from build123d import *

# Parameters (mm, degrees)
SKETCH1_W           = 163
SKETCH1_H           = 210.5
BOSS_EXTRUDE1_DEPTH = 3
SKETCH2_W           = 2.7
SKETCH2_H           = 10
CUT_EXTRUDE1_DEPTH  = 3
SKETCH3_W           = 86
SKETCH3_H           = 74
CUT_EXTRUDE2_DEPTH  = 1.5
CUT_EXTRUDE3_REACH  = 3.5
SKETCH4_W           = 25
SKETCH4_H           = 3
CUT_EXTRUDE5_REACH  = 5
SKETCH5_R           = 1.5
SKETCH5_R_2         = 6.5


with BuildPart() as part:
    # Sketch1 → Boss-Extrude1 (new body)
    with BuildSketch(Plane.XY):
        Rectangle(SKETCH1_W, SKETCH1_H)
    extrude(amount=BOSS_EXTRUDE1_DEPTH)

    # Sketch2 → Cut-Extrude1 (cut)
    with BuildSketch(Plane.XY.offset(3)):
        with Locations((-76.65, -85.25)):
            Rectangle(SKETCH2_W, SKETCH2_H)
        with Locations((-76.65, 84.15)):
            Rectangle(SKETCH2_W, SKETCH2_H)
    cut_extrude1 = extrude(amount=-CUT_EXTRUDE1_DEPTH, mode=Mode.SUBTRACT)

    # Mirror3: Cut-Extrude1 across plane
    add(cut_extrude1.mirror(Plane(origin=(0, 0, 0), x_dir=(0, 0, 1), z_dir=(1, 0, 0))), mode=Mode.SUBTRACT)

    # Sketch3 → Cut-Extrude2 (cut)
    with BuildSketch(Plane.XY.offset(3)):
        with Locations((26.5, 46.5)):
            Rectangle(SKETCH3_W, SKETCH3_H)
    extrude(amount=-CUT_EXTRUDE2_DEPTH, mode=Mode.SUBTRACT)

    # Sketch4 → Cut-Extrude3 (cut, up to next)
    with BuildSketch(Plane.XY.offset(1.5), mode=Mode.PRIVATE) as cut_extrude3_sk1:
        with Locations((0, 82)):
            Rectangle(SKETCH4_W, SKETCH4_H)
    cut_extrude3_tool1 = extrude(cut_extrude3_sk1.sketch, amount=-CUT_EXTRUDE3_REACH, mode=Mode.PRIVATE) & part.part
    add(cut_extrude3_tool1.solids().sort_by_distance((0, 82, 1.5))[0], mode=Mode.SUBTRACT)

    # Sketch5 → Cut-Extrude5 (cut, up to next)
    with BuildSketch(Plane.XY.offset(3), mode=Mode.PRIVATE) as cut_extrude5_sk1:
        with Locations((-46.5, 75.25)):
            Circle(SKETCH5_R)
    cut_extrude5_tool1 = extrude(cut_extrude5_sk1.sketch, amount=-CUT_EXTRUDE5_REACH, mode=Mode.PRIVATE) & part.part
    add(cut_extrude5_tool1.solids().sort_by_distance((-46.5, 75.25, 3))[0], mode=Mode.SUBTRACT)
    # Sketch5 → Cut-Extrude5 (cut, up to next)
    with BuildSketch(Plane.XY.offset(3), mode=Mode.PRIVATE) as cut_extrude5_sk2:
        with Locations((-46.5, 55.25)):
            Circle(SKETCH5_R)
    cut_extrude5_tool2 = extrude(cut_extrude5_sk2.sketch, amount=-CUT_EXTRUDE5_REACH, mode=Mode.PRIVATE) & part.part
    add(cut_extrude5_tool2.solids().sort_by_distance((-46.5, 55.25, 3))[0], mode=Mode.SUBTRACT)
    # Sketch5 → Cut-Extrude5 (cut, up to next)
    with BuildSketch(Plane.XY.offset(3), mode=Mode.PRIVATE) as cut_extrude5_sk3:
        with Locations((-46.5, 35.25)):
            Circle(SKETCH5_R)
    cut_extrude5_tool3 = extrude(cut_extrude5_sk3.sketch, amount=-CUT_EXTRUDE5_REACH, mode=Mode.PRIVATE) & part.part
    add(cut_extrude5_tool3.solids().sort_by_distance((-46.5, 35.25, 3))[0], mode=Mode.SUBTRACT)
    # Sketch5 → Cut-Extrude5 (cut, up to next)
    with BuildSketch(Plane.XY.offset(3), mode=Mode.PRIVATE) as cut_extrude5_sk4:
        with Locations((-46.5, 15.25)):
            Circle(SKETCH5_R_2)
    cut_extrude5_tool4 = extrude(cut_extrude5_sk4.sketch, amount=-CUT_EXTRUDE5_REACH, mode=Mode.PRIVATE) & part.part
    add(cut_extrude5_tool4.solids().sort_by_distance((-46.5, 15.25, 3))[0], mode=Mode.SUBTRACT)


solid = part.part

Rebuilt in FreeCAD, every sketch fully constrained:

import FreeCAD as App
import Part
import Sketcher

doc = App.newDocument("Part")
params = doc.addObject("Spreadsheet::Sheet", "Params")
for row, (alias, value) in enumerate([
    ("sketch1_width", "163 mm"),
    ("sketch1_height", "210.5 mm"),
    ("pad1_length", "3 mm"),
    ("sketch2_height", "10 mm"),
    ("sketch2_width", "2.7 mm"),
    ("pocket1_length", "3 mm"),
    ("sketch3_width", "86 mm"),
    ("sketch3_height", "74 mm"),
    ("pocket2_length", "1.5 mm"),
    ("sketch4_width", "25 mm"),
    ("sketch4_height", "3 mm"),
    ("sketch5_diameter", "3 mm"),
    ("sketch6_diameter", "3 mm"),
    ("sketch7_diameter", "3 mm"),
    ("sketch8_diameter", "13 mm"),
], start=1):
    params.set(f"A{row}", alias)
    params.set(f"B{row}", "=" + value)
    params.setAlias(f"B{row}", alias)

body = doc.addObject("PartDesign::Body", "Body")

# Sketch on XY plane
sketch1 = doc.addObject("Sketcher::SketchObject", "Sketch")
body.addObject(sketch1)
sketch1.AttachmentSupport = (doc.XY_Plane, [""])
sketch1.MapMode = "FlatFace"
sketch1.addGeometry(Part.LineSegment(App.Vector(-82, 105, 0), App.Vector(-82, -105, 0)), False)
sketch1.addGeometry(Part.LineSegment(App.Vector(-82, -105, 0), App.Vector(82, -105, 0)), False)
sketch1.addGeometry(Part.LineSegment(App.Vector(82, -105, 0), App.Vector(82, 105, 0)), False)
sketch1.addGeometry(Part.LineSegment(App.Vector(82, 105, 0), App.Vector(-82, 105, 0)), False)
sketch1.addConstraint(Sketcher.Constraint("Coincident", 0, 2, 1, 1))
sketch1.addConstraint(Sketcher.Constraint("Coincident", 1, 2, 2, 1))
sketch1.addConstraint(Sketcher.Constraint("Coincident", 2, 2, 3, 1))
sketch1.addConstraint(Sketcher.Constraint("Coincident", 3, 2, 0, 1))
sketch1.addConstraint(Sketcher.Constraint("Vertical", 0))
sketch1.addConstraint(Sketcher.Constraint("Horizontal", 1))
sketch1.addConstraint(Sketcher.Constraint("Vertical", 2))
sketch1.addConstraint(Sketcher.Constraint("Horizontal", 3))
sketch1.addConstraint(Sketcher.Constraint("Symmetric", 0, 2, 2, 2, -1, 1))
sketch1.addConstraint(Sketcher.Constraint("DistanceX", 1, 1, 1, 2, 163.0))
sketch1.addConstraint(Sketcher.Constraint("DistanceY", 0, 2, 0, 1, 210.5))
sketch1.setExpression("Constraints[9]", "Params.sketch1_width")
sketch1.setExpression("Constraints[10]", "Params.sketch1_height")
pad1 = doc.addObject("PartDesign::Pad", "Pad")
body.addObject(pad1)
pad1.Profile = sketch1
pad1.setExpression("Length", "Params.pad1_length")

# Sketch on XY plane
sketch2 = doc.addObject("Sketcher::SketchObject", "Sketch001")
body.addObject(sketch2)
sketch2.AttachmentSupport = (doc.XY_Plane, [""])
sketch2.MapMode = "FlatFace"
sketch2.AttachmentOffset = App.Placement(App.Vector(0, 0, 3), App.Rotation())
sketch2.addGeometry(Part.LineSegment(App.Vector(-78, -80.2, 0), App.Vector(-78, -90.2, 0)), False)
sketch2.addGeometry(Part.LineSegment(App.Vector(-78, -90.2, 0), App.Vector(-75.3, -90.2, 0)), False)
sketch2.addGeometry(Part.LineSegment(App.Vector(-75.3, -90.2, 0), App.Vector(-75.3, -80.2, 0)), False)
sketch2.addGeometry(Part.LineSegment(App.Vector(-75.3, -80.2, 0), App.Vector(-78, -80.2, 0)), False)
sketch2.addGeometry(Part.LineSegment(App.Vector(-78, 89.2, 0), App.Vector(-78, 79.2, 0)), False)
sketch2.addGeometry(Part.LineSegment(App.Vector(-78, 79.2, 0), App.Vector(-75.3, 79.2, 0)), False)
sketch2.addGeometry(Part.LineSegment(App.Vector(-75.3, 79.2, 0), App.Vector(-75.3, 89.2, 0)), False)
sketch2.addGeometry(Part.LineSegment(App.Vector(-75.3, 89.2, 0), App.Vector(-78, 89.2, 0)), False)
sketch2.addConstraint(Sketcher.Constraint("Coincident", 0, 2, 1, 1))
sketch2.addConstraint(Sketcher.Constraint("Coincident", 1, 2, 2, 1))
sketch2.addConstraint(Sketcher.Constraint("Coincident", 2, 2, 3, 1))
sketch2.addConstraint(Sketcher.Constraint("Coincident", 3, 2, 0, 1))
sketch2.addConstraint(Sketcher.Constraint("Coincident", 4, 2, 5, 1))
sketch2.addConstraint(Sketcher.Constraint("Coincident", 5, 2, 6, 1))
sketch2.addConstraint(Sketcher.Constraint("Coincident", 6, 2, 7, 1))
sketch2.addConstraint(Sketcher.Constraint("Coincident", 7, 2, 4, 1))
sketch2.addConstraint(Sketcher.Constraint("Vertical", 0))
sketch2.addConstraint(Sketcher.Constraint("Horizontal", 1))
sketch2.addConstraint(Sketcher.Constraint("Vertical", 2))
sketch2.addConstraint(Sketcher.Constraint("Horizontal", 3))
sketch2.addConstraint(Sketcher.Constraint("Vertical", 4))
sketch2.addConstraint(Sketcher.Constraint("Horizontal", 5))
sketch2.addConstraint(Sketcher.Constraint("Vertical", 6))
sketch2.addConstraint(Sketcher.Constraint("Horizontal", 7))
sketch2.addConstraint(Sketcher.Constraint("Vertical", 3, 2, 4, 2))
sketch2.addConstraint(Sketcher.Constraint("Vertical", 2, 2, 5, 2))
sketch2.addConstraint(Sketcher.Constraint("Equal", 2, 4))
sketch2.addConstraint(Sketcher.Constraint("DistanceY", 0, 2, 0, 1, 10.0))
sketch2.addConstraint(Sketcher.Constraint("DistanceX", 1, 1, 1, 2, 2.7))
sketch2.addConstraint(Sketcher.Constraint("DistanceX", 0, 2, -1, 1, 78.0))
sketch2.addConstraint(Sketcher.Constraint("DistanceY", 3, 2, 4, 2, 159.4))
sketch2.addConstraint(Sketcher.Constraint("DistanceY", 0, 2, -1, 1, 90.25))
sketch2.setExpression("Constraints[19]", "Params.sketch2_height")
sketch2.setExpression("Constraints[20]", "Params.sketch2_width")
pocket1 = doc.addObject("PartDesign::Pocket", "Pocket")
body.addObject(pocket1)
pocket1.Profile = sketch2
pocket1.setExpression("Length", "Params.pocket1_length")
doc.recompute()

mirrored = doc.addObject("PartDesign::Mirrored", "Mirrored")
body.addObject(mirrored)
mirrored.Originals = [pocket1]
mirrored.MirrorPlane = (doc.YZ_Plane, [""])
body.Tip = mirrored

# Sketch on XY plane
sketch3 = doc.addObject("Sketcher::SketchObject", "Sketch002")
body.addObject(sketch3)
sketch3.AttachmentSupport = (doc.XY_Plane, [""])
sketch3.MapMode = "FlatFace"
sketch3.AttachmentOffset = App.Placement(App.Vector(0, 0, 3), App.Rotation())
sketch3.addGeometry(Part.LineSegment(App.Vector(-16, 84, 0), App.Vector(-16, 10, 0)), False)
sketch3.addGeometry(Part.LineSegment(App.Vector(-16, 10, 0), App.Vector(70, 10, 0)), False)
sketch3.addGeometry(Part.LineSegment(App.Vector(70, 10, 0), App.Vector(70, 84, 0)), False)
sketch3.addGeometry(Part.LineSegment(App.Vector(70, 84, 0), App.Vector(-16, 84, 0)), False)
sketch3.addConstraint(Sketcher.Constraint("Coincident", 0, 2, 1, 1))
sketch3.addConstraint(Sketcher.Constraint("Coincident", 1, 2, 2, 1))
sketch3.addConstraint(Sketcher.Constraint("Coincident", 2, 2, 3, 1))
sketch3.addConstraint(Sketcher.Constraint("Coincident", 3, 2, 0, 1))
sketch3.addConstraint(Sketcher.Constraint("Vertical", 0))
sketch3.addConstraint(Sketcher.Constraint("Horizontal", 1))
sketch3.addConstraint(Sketcher.Constraint("Vertical", 2))
sketch3.addConstraint(Sketcher.Constraint("Horizontal", 3))
sketch3.addConstraint(Sketcher.Constraint("DistanceX", 1, 1, 1, 2, 86.0))
sketch3.addConstraint(Sketcher.Constraint("DistanceY", 0, 2, 0, 1, 74.0))
sketch3.addConstraint(Sketcher.Constraint("DistanceX", 0, 2, -1, 1, 16.5))
sketch3.addConstraint(Sketcher.Constraint("DistanceY", -1, 1, 0, 2, 9.5))
sketch3.setExpression("Constraints[8]", "Params.sketch3_width")
sketch3.setExpression("Constraints[9]", "Params.sketch3_height")
pocket2 = doc.addObject("PartDesign::Pocket", "Pocket001")
body.addObject(pocket2)
pocket2.Profile = sketch3
pocket2.setExpression("Length", "Params.pocket2_length")

# Sketch on XY plane
sketch4 = doc.addObject("Sketcher::SketchObject", "Sketch003")
body.addObject(sketch4)
sketch4.AttachmentSupport = (doc.XY_Plane, [""])
sketch4.MapMode = "FlatFace"
sketch4.AttachmentOffset = App.Placement(App.Vector(0, 0, 1.5), App.Rotation())
sketch4.addGeometry(Part.LineSegment(App.Vector(-12.5, 83.5, 0), App.Vector(-12.5, 80.5, 0)), False)
sketch4.addGeometry(Part.LineSegment(App.Vector(-12.5, 80.5, 0), App.Vector(12.5, 80.5, 0)), False)
sketch4.addGeometry(Part.LineSegment(App.Vector(12.5, 80.5, 0), App.Vector(12.5, 83.5, 0)), False)
sketch4.addGeometry(Part.LineSegment(App.Vector(12.5, 83.5, 0), App.Vector(-12.5, 83.5, 0)), False)
sketch4.addConstraint(Sketcher.Constraint("Coincident", 0, 2, 1, 1))
sketch4.addConstraint(Sketcher.Constraint("Coincident", 1, 2, 2, 1))
sketch4.addConstraint(Sketcher.Constraint("Coincident", 2, 2, 3, 1))
sketch4.addConstraint(Sketcher.Constraint("Coincident", 3, 2, 0, 1))
sketch4.addConstraint(Sketcher.Constraint("Vertical", 0))
sketch4.addConstraint(Sketcher.Constraint("Horizontal", 1))
sketch4.addConstraint(Sketcher.Constraint("Vertical", 2))
sketch4.addConstraint(Sketcher.Constraint("Horizontal", 3))
sketch4.addConstraint(Sketcher.Constraint("DistanceX", 1, 1, 1, 2, 25.0))
sketch4.addConstraint(Sketcher.Constraint("DistanceY", 0, 2, 0, 1, 3.0))
sketch4.addConstraint(Sketcher.Constraint("DistanceX", 0, 2, -1, 1, 12.5))
sketch4.addConstraint(Sketcher.Constraint("DistanceY", -1, 1, 0, 2, 80.5))
sketch4.setExpression("Constraints[8]", "Params.sketch4_width")
sketch4.setExpression("Constraints[9]", "Params.sketch4_height")
pocket3 = doc.addObject("PartDesign::Pocket", "Pocket002")
body.addObject(pocket3)
pocket3.Profile = sketch4
pocket3.Type = "UpToFirst"

# Sketch on XY plane
sketch5 = doc.addObject("Sketcher::SketchObject", "Sketch004")
body.addObject(sketch5)
sketch5.AttachmentSupport = (doc.XY_Plane, [""])
sketch5.MapMode = "FlatFace"
sketch5.AttachmentOffset = App.Placement(App.Vector(0, 0, 3), App.Rotation())
sketch5.addGeometry(Part.Circle(App.Vector(-46.5, 75.2, 0), App.Vector(0, 0, 1), 1.5), False)
sketch5.addConstraint(Sketcher.Constraint("Diameter", 0, 3.0))
sketch5.addConstraint(Sketcher.Constraint("DistanceX", 0, 3, -1, 1, 46.5))
sketch5.addConstraint(Sketcher.Constraint("DistanceY", -1, 1, 0, 3, 75.25))
sketch5.setExpression("Constraints[0]", "Params.sketch5_diameter")
pocket4 = doc.addObject("PartDesign::Pocket", "Pocket003")
body.addObject(pocket4)
pocket4.Profile = sketch5
pocket4.Type = "UpToFirst"

# Sketch on XY plane
sketch6 = doc.addObject("Sketcher::SketchObject", "Sketch005")
body.addObject(sketch6)
sketch6.AttachmentSupport = (doc.XY_Plane, [""])
sketch6.MapMode = "FlatFace"
sketch6.AttachmentOffset = App.Placement(App.Vector(0, 0, 3), App.Rotation())
sketch6.addGeometry(Part.Circle(App.Vector(-46.5, 55.2, 0), App.Vector(0, 0, 1), 1.5), False)
sketch6.addConstraint(Sketcher.Constraint("Diameter", 0, 3.0))
sketch6.addConstraint(Sketcher.Constraint("DistanceX", 0, 3, -1, 1, 46.5))
sketch6.addConstraint(Sketcher.Constraint("DistanceY", -1, 1, 0, 3, 55.25))
sketch6.setExpression("Constraints[0]", "Params.sketch6_diameter")
pocket5 = doc.addObject("PartDesign::Pocket", "Pocket004")
body.addObject(pocket5)
pocket5.Profile = sketch6
pocket5.Type = "UpToFirst"

# Sketch on XY plane
sketch7 = doc.addObject("Sketcher::SketchObject", "Sketch006")
body.addObject(sketch7)
sketch7.AttachmentSupport = (doc.XY_Plane, [""])
sketch7.MapMode = "FlatFace"
sketch7.AttachmentOffset = App.Placement(App.Vector(0, 0, 3), App.Rotation())
sketch7.addGeometry(Part.Circle(App.Vector(-46.5, 35.2, 0), App.Vector(0, 0, 1), 1.5), False)
sketch7.addConstraint(Sketcher.Constraint("Diameter", 0, 3.0))
sketch7.addConstraint(Sketcher.Constraint("DistanceX", 0, 3, -1, 1, 46.5))
sketch7.addConstraint(Sketcher.Constraint("DistanceY", -1, 1, 0, 3, 35.25))
sketch7.setExpression("Constraints[0]", "Params.sketch7_diameter")
pocket6 = doc.addObject("PartDesign::Pocket", "Pocket005")
body.addObject(pocket6)
pocket6.Profile = sketch7
pocket6.Type = "UpToFirst"

# Sketch on XY plane
sketch8 = doc.addObject("Sketcher::SketchObject", "Sketch007")
body.addObject(sketch8)
sketch8.AttachmentSupport = (doc.XY_Plane, [""])
sketch8.MapMode = "FlatFace"
sketch8.AttachmentOffset = App.Placement(App.Vector(0, 0, 3), App.Rotation())
sketch8.addGeometry(Part.Circle(App.Vector(-46, 15, 0), App.Vector(0, 0, 1), 6), False)
sketch8.addConstraint(Sketcher.Constraint("Diameter", 0, 13.0))
sketch8.addConstraint(Sketcher.Constraint("DistanceX", 0, 3, -1, 1, 46.5))
sketch8.addConstraint(Sketcher.Constraint("DistanceY", -1, 1, 0, 3, 15.25))
sketch8.setExpression("Constraints[0]", "Params.sketch8_diameter")
pocket7 = doc.addObject("PartDesign::Pocket", "Pocket006")
body.addObject(pocket7)
pocket7.Profile = sketch8
pocket7.Type = "UpToFirst"

doc.recompute()
